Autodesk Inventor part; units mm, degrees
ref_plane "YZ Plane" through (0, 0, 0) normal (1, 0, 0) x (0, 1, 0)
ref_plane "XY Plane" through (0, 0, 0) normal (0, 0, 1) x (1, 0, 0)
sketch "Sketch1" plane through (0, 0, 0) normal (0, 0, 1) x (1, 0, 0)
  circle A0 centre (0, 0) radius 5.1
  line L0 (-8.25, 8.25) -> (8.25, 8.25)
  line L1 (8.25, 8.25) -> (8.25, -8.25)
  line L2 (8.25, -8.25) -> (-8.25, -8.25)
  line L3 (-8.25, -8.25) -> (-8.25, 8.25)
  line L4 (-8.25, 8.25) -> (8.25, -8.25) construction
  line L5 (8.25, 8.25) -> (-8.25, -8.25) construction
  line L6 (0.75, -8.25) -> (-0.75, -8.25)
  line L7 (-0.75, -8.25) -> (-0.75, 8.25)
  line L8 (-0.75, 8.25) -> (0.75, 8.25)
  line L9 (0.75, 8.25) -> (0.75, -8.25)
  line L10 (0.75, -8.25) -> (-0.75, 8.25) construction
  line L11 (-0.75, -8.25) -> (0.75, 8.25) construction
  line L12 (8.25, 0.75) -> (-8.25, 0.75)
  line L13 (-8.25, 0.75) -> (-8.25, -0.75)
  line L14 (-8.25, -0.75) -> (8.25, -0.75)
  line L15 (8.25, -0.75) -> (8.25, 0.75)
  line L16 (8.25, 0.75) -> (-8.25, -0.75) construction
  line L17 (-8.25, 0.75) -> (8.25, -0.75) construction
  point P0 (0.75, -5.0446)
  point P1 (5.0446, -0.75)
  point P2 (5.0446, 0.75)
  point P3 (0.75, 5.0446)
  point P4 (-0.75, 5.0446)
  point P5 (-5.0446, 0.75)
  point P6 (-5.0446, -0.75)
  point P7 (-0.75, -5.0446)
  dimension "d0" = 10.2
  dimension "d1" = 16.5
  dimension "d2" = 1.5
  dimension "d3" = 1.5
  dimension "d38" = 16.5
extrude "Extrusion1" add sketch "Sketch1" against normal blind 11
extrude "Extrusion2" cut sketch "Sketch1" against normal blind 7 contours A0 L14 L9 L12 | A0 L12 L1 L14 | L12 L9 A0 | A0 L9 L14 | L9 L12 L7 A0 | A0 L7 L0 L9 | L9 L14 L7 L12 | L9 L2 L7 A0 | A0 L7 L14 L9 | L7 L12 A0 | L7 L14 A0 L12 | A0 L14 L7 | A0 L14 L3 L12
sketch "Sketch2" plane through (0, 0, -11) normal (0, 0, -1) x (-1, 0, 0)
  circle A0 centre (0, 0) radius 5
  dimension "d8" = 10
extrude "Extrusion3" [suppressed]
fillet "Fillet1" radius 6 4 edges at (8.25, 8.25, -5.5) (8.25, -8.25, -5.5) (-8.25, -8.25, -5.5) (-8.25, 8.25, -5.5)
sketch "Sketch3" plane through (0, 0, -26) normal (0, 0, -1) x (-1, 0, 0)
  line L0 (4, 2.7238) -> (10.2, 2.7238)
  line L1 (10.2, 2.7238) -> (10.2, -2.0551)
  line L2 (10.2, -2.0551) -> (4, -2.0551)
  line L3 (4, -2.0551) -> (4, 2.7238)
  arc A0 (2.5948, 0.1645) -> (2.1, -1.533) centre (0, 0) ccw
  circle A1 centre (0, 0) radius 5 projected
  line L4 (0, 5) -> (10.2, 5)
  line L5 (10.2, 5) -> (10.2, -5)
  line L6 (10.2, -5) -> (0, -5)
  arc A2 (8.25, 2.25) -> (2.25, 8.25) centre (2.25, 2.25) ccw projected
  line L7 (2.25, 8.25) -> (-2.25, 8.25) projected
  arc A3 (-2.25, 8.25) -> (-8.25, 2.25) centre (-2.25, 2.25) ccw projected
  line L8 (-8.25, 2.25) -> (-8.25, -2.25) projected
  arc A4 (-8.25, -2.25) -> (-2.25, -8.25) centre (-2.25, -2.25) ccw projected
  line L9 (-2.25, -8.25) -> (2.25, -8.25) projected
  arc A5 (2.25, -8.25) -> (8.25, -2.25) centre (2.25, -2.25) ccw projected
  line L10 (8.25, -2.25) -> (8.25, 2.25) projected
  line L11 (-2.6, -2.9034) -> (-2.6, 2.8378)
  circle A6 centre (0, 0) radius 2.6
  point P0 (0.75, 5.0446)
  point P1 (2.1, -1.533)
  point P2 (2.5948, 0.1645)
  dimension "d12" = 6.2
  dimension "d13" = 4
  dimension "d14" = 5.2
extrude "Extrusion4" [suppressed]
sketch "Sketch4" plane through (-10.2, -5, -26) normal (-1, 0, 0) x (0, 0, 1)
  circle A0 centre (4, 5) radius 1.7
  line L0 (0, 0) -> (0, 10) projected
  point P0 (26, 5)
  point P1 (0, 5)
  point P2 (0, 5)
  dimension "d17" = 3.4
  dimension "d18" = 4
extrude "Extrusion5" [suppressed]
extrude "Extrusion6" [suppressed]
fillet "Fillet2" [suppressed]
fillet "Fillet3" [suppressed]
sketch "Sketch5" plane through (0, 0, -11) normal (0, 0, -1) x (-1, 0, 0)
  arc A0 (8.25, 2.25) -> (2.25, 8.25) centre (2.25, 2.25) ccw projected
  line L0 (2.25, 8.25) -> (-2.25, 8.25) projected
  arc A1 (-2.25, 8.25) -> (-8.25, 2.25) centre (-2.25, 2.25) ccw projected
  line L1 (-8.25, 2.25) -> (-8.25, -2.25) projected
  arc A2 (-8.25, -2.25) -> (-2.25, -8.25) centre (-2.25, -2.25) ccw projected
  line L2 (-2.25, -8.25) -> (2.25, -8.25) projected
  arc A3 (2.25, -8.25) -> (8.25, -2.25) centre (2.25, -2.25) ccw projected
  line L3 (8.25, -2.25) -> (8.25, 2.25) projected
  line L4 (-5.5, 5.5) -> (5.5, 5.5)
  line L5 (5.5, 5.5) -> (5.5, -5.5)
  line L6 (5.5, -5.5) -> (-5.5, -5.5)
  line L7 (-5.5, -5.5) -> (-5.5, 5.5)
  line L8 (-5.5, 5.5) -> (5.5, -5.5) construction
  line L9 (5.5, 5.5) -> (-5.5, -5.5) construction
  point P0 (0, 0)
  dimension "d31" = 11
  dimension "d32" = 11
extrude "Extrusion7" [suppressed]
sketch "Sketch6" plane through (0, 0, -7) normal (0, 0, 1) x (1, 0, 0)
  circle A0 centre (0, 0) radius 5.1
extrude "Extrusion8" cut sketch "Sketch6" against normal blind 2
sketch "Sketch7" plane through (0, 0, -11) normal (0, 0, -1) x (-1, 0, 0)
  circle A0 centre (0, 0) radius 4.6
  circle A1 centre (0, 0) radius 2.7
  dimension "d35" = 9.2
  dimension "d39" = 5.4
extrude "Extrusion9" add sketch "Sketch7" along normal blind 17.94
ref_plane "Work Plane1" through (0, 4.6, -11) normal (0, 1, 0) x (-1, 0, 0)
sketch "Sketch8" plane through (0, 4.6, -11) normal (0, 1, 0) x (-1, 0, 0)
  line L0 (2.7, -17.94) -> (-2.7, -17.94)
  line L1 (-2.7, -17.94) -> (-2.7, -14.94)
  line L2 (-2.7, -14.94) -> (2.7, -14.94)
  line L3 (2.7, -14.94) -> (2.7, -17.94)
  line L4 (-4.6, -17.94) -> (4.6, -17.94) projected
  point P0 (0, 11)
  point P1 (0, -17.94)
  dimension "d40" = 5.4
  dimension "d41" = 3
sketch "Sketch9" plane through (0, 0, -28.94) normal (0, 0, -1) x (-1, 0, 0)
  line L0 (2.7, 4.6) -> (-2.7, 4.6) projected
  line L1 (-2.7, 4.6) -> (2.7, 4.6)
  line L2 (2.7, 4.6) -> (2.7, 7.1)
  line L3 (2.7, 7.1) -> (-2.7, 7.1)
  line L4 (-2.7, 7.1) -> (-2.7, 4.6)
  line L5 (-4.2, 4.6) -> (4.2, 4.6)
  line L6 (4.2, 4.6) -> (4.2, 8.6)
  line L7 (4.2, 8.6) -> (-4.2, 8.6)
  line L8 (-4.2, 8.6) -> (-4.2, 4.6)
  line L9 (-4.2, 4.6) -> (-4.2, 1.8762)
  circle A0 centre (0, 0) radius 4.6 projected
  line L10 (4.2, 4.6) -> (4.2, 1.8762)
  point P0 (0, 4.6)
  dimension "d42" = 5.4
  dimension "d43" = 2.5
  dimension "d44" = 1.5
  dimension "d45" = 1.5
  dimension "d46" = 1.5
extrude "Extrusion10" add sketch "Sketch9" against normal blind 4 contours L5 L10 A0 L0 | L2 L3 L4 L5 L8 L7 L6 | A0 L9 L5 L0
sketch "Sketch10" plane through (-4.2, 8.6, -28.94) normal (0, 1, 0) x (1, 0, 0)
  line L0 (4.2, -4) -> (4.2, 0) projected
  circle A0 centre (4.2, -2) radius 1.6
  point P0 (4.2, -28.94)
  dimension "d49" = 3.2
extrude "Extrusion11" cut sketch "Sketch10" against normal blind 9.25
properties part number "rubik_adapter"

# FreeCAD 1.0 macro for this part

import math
import FreeCAD as App
import Part
import Sketcher
from FreeCAD import Vector


def edges_at(feature, points):
    """Names of the edges that pass closest to the given points."""
    edges = feature.Shape.Edges
    near = lambda p: min(range(len(edges)), key=lambda i: edges[i].distToShape(Part.Vertex(*p))[0])
    return sorted({f"Edge{near(p) + 1}" for p in points})

doc = App.newDocument("Part")
params = doc.addObject("Spreadsheet::Sheet", "Params")
for row, (alias, value) in enumerate([
    ("sketch1_width", "16.5 mm"),
    ("pad1_length", "11 mm"),
    ("sketch2_radius", "5.1 mm"),
    ("sketch2_width", "1.5 mm"),
    ("pocket1_length", "7 mm"),
    ("fillet_radius", "6 mm"),
    ("sketch3_diameter", "10.2 mm"),
    ("pocket2_length", "2 mm"),
    ("sketch4_diameter", "9.2 mm"),
    ("sketch4_diameter2", "5.4 mm"),
    ("pad2_length", "17.94 mm"),
    ("sketch5_width", "5.4 mm"),
    ("sketch5_height", "2.5 mm"),
    ("sketch5_radius", "4.6 mm"),
    ("pad3_length", "4 mm"),
    ("sketch6_diameter", "3.2 mm"),
    ("pocket3_length", "9.25 mm"),
], start=1):
    params.set(f"A{row}", alias)
    params.set(f"B{row}", "=" + value)
    params.setAlias(f"B{row}", alias)

body = doc.addObject("PartDesign::Body", "Body")

sketch1 = doc.addObject("Sketcher::SketchObject", "Sketch")
body.addObject(sketch1)
sketch1.AttachmentSupport = (doc.XY_Plane, [""])
sketch1.MapMode = "FlatFace"
sketch1.addGeometry(Part.LineSegment(Vector(8, 8, 0), Vector(-8, 8, 0)), False)
sketch1.addGeometry(Part.LineSegment(Vector(-8, 8, 0), Vector(-8, -8, 0)), False)
sketch1.addGeometry(Part.LineSegment(Vector(-8, -8, 0), Vector(8, -8, 0)), False)
sketch1.addGeometry(Part.LineSegment(Vector(8, -8, 0), Vector(8, 8, 0)), False)
sketch1.addConstraint(Sketcher.Constraint("Coincident", 0, 2, 1, 1))
sketch1.addConstraint(Sketcher.Constraint("Coincident", 1, 2, 2, 1))
sketch1.addConstraint(Sketcher.Constraint("Coincident", 2, 2, 3, 1))
sketch1.addConstraint(Sketcher.Constraint("Coincident", 3, 2, 0, 1))
sketch1.addConstraint(Sketcher.Constraint("Horizontal", 0))
sketch1.addConstraint(Sketcher.Constraint("Vertical", 1))
sketch1.addConstraint(Sketcher.Constraint("Horizontal", 2))
sketch1.addConstraint(Sketcher.Constraint("Vertical", 3))
sketch1.addConstraint(Sketcher.Constraint("Symmetric", 0, 2, 2, 2, -1, 1))
sketch1.addConstraint(Sketcher.Constraint("Equal", 2, 1))
sketch1.addConstraint(Sketcher.Constraint("DistanceX", 0, 2, 0, 1, 16.5))
sketch1.setExpression("Constraints[10]", "Params.sketch1_width")
pad1 = doc.addObject("PartDesign::Pad", "Pad")
body.addObject(pad1)
pad1.Profile = sketch1
pad1.setExpression("Length", "Params.pad1_length")
pad1.Reversed = True

sketch2 = doc.addObject("Sketcher::SketchObject", "Sketch001")
body.addObject(sketch2)
sketch2.AttachmentSupport = (doc.XY_Plane, [""])
sketch2.MapMode = "FlatFace"
sketch2.addGeometry(Part.LineSegment(Vector(5, -0.8, 0), Vector(8.2, -0.8, 0)), False)
sketch2.addGeometry(Part.LineSegment(Vector(8.2, -0.8, 0), Vector(8.2, 0.8, 0)), False)
sketch2.addGeometry(Part.LineSegment(Vector(8.2, 0.8, 0), Vector(5, 0.8, 0)), False)
sketch2.addGeometry(Part.ArcOfCircle(Part.Circle(Vector(0, 0, 0), Vector(0, 0, 1), 5.1), math.radians(8), math.radians(82)), False)
sketch2.addGeometry(Part.LineSegment(Vector(0.8, 5, 0), Vector(0.8, 8.2, 0)), False)
sketch2.addGeometry(Part.LineSegment(Vector(0.8, 8.2, 0), Vector(-0.8, 8.2, 0)), False)
sketch2.addGeometry(Part.LineSegment(Vector(-0.8, 8.2, 0), Vector(-0.8, 5, 0)), False)
sketch2.addGeometry(Part.ArcOfCircle(Part.Circle(Vector(0, 0, 0), Vector(0, 0, 1), 5.1), math.radians(98), math.radians(172)), False)
sketch2.addGeometry(Part.LineSegment(Vector(-5, 0.8, 0), Vector(-8.2, 0.8, 0)), False)
sketch2.addGeometry(Part.LineSegment(Vector(-8.2, 0.8, 0), Vector(-8.2, -0.8, 0)), False)
sketch2.addGeometry(Part.LineSegment(Vector(-8.2, -0.8, 0), Vector(-5, -0.8, 0)), False)
sketch2.addGeometry(Part.ArcOfCircle(Part.Circle(Vector(0, 0, 0), Vector(0, 0, 1), 5.1), math.radians(-172), math.radians(-98)), False)
sketch2.addGeometry(Part.LineSegment(Vector(-0.8, -5, 0), Vector(-0.8, -8.2, 0)), False)
sketch2.addGeometry(Part.LineSegment(Vector(-0.8, -8.2, 0), Vector(0.8, -8.2, 0)), False)
sketch2.addGeometry(Part.LineSegment(Vector(0.8, -8.2, 0), Vector(0.8, -5, 0)), False)
sketch2.addGeometry(Part.ArcOfCircle(Part.Circle(Vector(0, 0, 0), Vector(0, 0, 1), 5.1), math.radians(-82), math.radians(-8)), False)
sketch2.addConstraint(Sketcher.Constraint("Coincident", 0, 2, 1, 1))
sketch2.addConstraint(Sketcher.Constraint("Coincident", 1, 2, 2, 1))
sketch2.addConstraint(Sketcher.Constraint("Coincident", 2, 2, 3, 1))
sketch2.addConstraint(Sketcher.Constraint("Coincident", 3, 2, 4, 1))
sketch2.addConstraint(Sketcher.Constraint("Coincident", 4, 2, 5, 1))
sketch2.addConstraint(Sketcher.Constraint("Coincident", 5, 2, 6, 1))
sketch2.addConstraint(Sketcher.Constraint("Coincident", 6, 2, 7, 1))
sketch2.addConstraint(Sketcher.Constraint("Coincident", 7, 2, 8, 1))
sketch2.addConstraint(Sketcher.Constraint("Coincident", 8, 2, 9, 1))
sketch2.addConstraint(Sketcher.Constraint("Coincident", 9, 2, 10, 1))
sketch2.addConstraint(Sketcher.Constraint("Coincident", 10, 2, 11, 1))
sketch2.addConstraint(Sketcher.Constraint("Coincident", 11, 2, 12, 1))
sketch2.addConstraint(Sketcher.Constraint("Coincident", 12, 2, 13, 1))
sketch2.addConstraint(Sketcher.Constraint("Coincident", 13, 2, 14, 1))
sketch2.addConstraint(Sketcher.Constraint("Coincident", 14, 2, 15, 1))
sketch2.addConstraint(Sketcher.Constraint("Coincident", 15, 2, 0, 1))
sketch2.addConstraint(Sketcher.Constraint("Horizontal", 0))
sketch2.addConstraint(Sketcher.Constraint("Vertical", 1))
sketch2.addConstraint(Sketcher.Constraint("Horizontal", 2))
sketch2.addConstraint(Sketcher.Constraint("Vertical", 4))
sketch2.addConstraint(Sketcher.Constraint("Horizontal", 5))
sketch2.addConstraint(Sketcher.Constraint("Vertical", 6))
sketch2.addConstraint(Sketcher.Constraint("Horizontal", 8))
sketch2.addConstraint(Sketcher.Constraint("Vertical", 9))
sketch2.addConstraint(Sketcher.Constraint("Horizontal", 10))
sketch2.addConstraint(Sketcher.Constraint("Vertical", 12))
sketch2.addConstraint(Sketcher.Constraint("Horizontal", 13))
sketch2.addConstraint(Sketcher.Constraint("Vertical", 14))
sketch2.addConstraint(Sketcher.Constraint("Coincident", 3, 3, -1, 1))
sketch2.addConstraint(Sketcher.Constraint("Coincident", 7, 3, -1, 1))
sketch2.addConstraint(Sketcher.Constraint("Coincident", 11, 3, -1, 1))
sketch2.addConstraint(Sketcher.Constraint("Coincident", 15, 3, -1, 1))
sketch2.addConstraint(Sketcher.Constraint("Equal", 3, 7))
sketch2.addConstraint(Sketcher.Constraint("Equal", 7, 11))
sketch2.addConstraint(Sketcher.Constraint("Equal", 11, 15))
sketch2.addConstraint(Sketcher.Constraint("Symmetric", 0, 2, 8, 2, -1, 1))
sketch2.addConstraint(Sketcher.Constraint("Symmetric", 4, 2, 12, 2, -1, 1))
sketch2.addConstraint(Sketcher.Constraint("Horizontal", 3, 2, 6, 2))
sketch2.addConstraint(Sketcher.Constraint("Horizontal", 2, 2, 7, 2))
sketch2.addConstraint(Sketcher.Constraint("Horizontal", 0, 2, 9, 2))
sketch2.addConstraint(Sketcher.Constraint("Horizontal", 11, 2, 14, 2))
sketch2.addConstraint(Sketcher.Constraint("Equal", 13, 1))
sketch2.addConstraint(Sketcher.Constraint("Equal", 10, 4))
sketch2.addConstraint(Sketcher.Constraint("Radius", 3, 5.1))
sketch2.addConstraint(Sketcher.Constraint("DistanceX", 5, 2, 5, 1, 1.5))
sketch2.addConstraint(Sketcher.Constraint("DistanceX", -1, 1, 0, 2, 8.25))
sketch2.setExpression("Constraints[43]", "Params.sketch2_radius")
sketch2.setExpression("Constraints[44]", "Params.sketch2_width")
pocket1 = doc.addObject("PartDesign::Pocket", "Pocket")
body.addObject(pocket1)
pocket1.Profile = sketch2
pocket1.setExpression("Length", "Params.pocket1_length")
doc.recompute()

fillet = doc.addObject("PartDesign::Fillet", "Fillet")
body.addObject(fillet)
fillet.Base = (pocket1, edges_at(pocket1, [
    (8.25, 8.25, -5.5),
    (8.25, -8.25, -5.5),
    (-8.25, -8.25, -5.5),
    (-8.25, 8.25, -5.5),
]))
fillet.setExpression("Radius", "Params.fillet_radius")

sketch3 = doc.addObject("Sketcher::SketchObject", "Sketch002")
body.addObject(sketch3)
sketch3.AttachmentSupport = (doc.XY_Plane, [""])
sketch3.MapMode = "FlatFace"
sketch3.AttachmentOffset = App.Placement(Vector(0, 0, -7), App.Rotation())
sketch3.addGeometry(Part.Circle(Vector(0, 0, 0), Vector(0, 0, 1), 5), False)
sketch3.addConstraint(Sketcher.Constraint("Coincident", 0, 3, -1, 1))
sketch3.addConstraint(Sketcher.Constraint("Diameter", 0, 10.2))
sketch3.setExpression("Constraints[1]", "Params.sketch3_diameter")
pocket2 = doc.addObject("PartDesign::Pocket", "Pocket001")
body.addObject(pocket2)
pocket2.Profile = sketch3
pocket2.setExpression("Length", "Params.pocket2_length")

sketch4 = doc.addObject("Sketcher::SketchObject", "Sketch003")
body.addObject(sketch4)
sketch4.AttachmentSupport = (doc.XY_Plane, [""])
sketch4.MapMode = "FlatFace"
sketch4.AttachmentOffset = App.Placement(Vector(0, 0, -11), App.Rotation())
sketch4.addGeometry(Part.Circle(Vector(0, 0, 0), Vector(0, 0, 1), 4.6), False)
sketch4.addGeometry(Part.Circle(Vector(0, 0, 0), Vector(0, 0, 1), 2.7), False)
sketch4.addConstraint(Sketcher.Constraint("Coincident", 0, 3, -1, 1))
sketch4.addConstraint(Sketcher.Constraint("Coincident", 1, 3, -1, 1))
sketch4.addConstraint(Sketcher.Constraint("Diameter", 0, 9.2))
sketch4.addConstraint(Sketcher.Constraint("Diameter", 1, 5.4))
sketch4.setExpression("Constraints[2]", "Params.sketch4_diameter")
sketch4.setExpression("Constraints[3]", "Params.sketch4_diameter2")
pad2 = doc.addObject("PartDesign::Pad", "Pad001")
body.addObject(pad2)
pad2.Profile = sketch4
pad2.setExpression("Length", "Params.pad2_length")
pad2.Reversed = True

sketch5 = doc.addObject("Sketcher::SketchObject", "Sketch004")
body.addObject(sketch5)
sketch5.AttachmentSupport = (doc.XY_Plane, [""])
sketch5.MapMode = "FlatFace"
sketch5.AttachmentOffset = App.Placement(Vector(0, 0, -28.94), App.Rotation())
sketch5.addGeometry(Part.ArcOfCircle(Part.Circle(Vector(0, 0, 0), Vector(0, 0, 1), 4.6), math.radians(90), math.radians(156)), False)
sketch5.addGeometry(Part.LineSegment(Vector(-4.2, 1.9, 0), Vector(-4.2, 8.6, 0)), False)
sketch5.addGeometry(Part.LineSegment(Vector(-4.2, 8.6, 0), Vector(4.2, 8.6, 0)), False)
sketch5.addGeometry(Part.LineSegment(Vector(4.2, 8.6, 0), Vector(4.2, 1.9, 0)), False)
sketch5.addGeometry(Part.ArcOfCircle(Part.Circle(Vector(0, 0, 0), Vector(0, 0, 1), 4.6), math.radians(24), math.radians(90)), False)
sketch5.addGeometry(Part.LineSegment(Vector(0, 4.6, 0), Vector(2.7, 4.6, 0)), False)
sketch5.addGeometry(Part.LineSegment(Vector(2.7, 4.6, 0), Vector(2.7, 7.1, 0)), False)
sketch5.addGeometry(Part.LineSegment(Vector(2.7, 7.1, 0), Vector(-2.7, 7.1, 0)), False)
sketch5.addGeometry(Part.LineSegment(Vector(-2.7, 7.1, 0), Vector(-2.7, 4.6, 0)), False)
sketch5.addGeometry(Part.LineSegment(Vector(-2.7, 4.6, 0), Vector(0, 4.6, 0)), False)
sketch5.addConstraint(Sketcher.Constraint("Coincident", 0, 2, 1, 1))
sketch5.addConstraint(Sketcher.Constraint("Coincident", 1, 2, 2, 1))
sketch5.addConstraint(Sketcher.Constraint("Coincident", 2, 2, 3, 1))
sketch5.addConstraint(Sketcher.Constraint("Coincident", 3, 2, 4, 1))
sketch5.addConstraint(Sketcher.Constraint("Tangent", 4, 2, 0, 1))
sketch5.addConstraint(Sketcher.Constraint("Coincident", 5, 2, 6, 1))
sketch5.addConstraint(Sketcher.Constraint("Coincident", 6, 2, 7, 1))
sketch5.addConstraint(Sketcher.Constraint("Coincident", 7, 2, 8, 1))
sketch5.addConstraint(Sketcher.Constraint("Coincident", 8, 2, 9, 1))
sketch5.addConstraint(Sketcher.Constraint("Coincident", 9, 2, 5, 1))
sketch5.addConstraint(Sketcher.Constraint("Vertical", 1))
sketch5.addConstraint(Sketcher.Constraint("Horizontal", 2))
sketch5.addConstraint(Sketcher.Constraint("Vertical", 3))
sketch5.addConstraint(Sketcher.Constraint("Horizontal", 5))
sketch5.addConstraint(Sketcher.Constraint("Vertical", 6))
sketch5.addConstraint(Sketcher.Constraint("Horizontal", 7))
sketch5.addConstraint(Sketcher.Constraint("Vertical", 8))
sketch5.addConstraint(Sketcher.Constraint("Horizontal", 9))
sketch5.addConstraint(Sketcher.Constraint("Coincident", 0, 3, -1, 1))
sketch5.addConstraint(Sketcher.Constraint("Coincident", 9, 2, 4, 2))
sketch5.addConstraint(Sketcher.Constraint("Equal", 0, 4))
sketch5.addConstraint(Sketcher.Constraint("PointOnObject", 4, 2, -2))
sketch5.addConstraint(Sketcher.Constraint("Horizontal", 0, 2, 3, 2))
sketch5.addConstraint(Sketcher.Constraint("Equal", 5, 9))
sketch5.addConstraint(Sketcher.Constraint("DistanceX", 7, 2, 7, 1, 5.4))
sketch5.addConstraint(Sketcher.Constraint("DistanceY", 6, 1, 6, 2, 2.5))
sketch5.addConstraint(Sketcher.Constraint("Radius", 0, 4.6))
sketch5.addConstraint(Sketcher.Constraint("DistanceX", 5, 2, 3, 2, 1.5))
sketch5.addConstraint(Sketcher.Constraint("DistanceY", 6, 2, 2, 2, 1.5))
sketch5.setExpression("Constraints[24]", "Params.sketch5_width")
sketch5.setExpression("Constraints[25]", "Params.sketch5_height")
sketch5.setExpression("Constraints[26]", "Params.sketch5_radius")
pad3 = doc.addObject("PartDesign::Pad", "Pad002")
body.addObject(pad3)
pad3.Profile = sketch5
pad3.setExpression("Length", "Params.pad3_length")

sketch6 = doc.addObject("Sketcher::SketchObject", "Sketch005")
body.addObject(sketch6)
sketch6.AttachmentSupport = (doc.XZ_Plane, [""])
sketch6.MapMode = "FlatFace"
sketch6.AttachmentOffset = App.Placement(Vector(0, 0, -8.6), App.Rotation())
sketch6.addGeometry(Part.Circle(Vector(0, -26.9, 0), Vector(0, 0, 1), 1.6), False)
sketch6.addConstraint(Sketcher.Constraint("PointOnObject", 0, 3, -2))
sketch6.addConstraint(Sketcher.Constraint("Diameter", 0, 3.2))
sketch6.addConstraint(Sketcher.Constraint("DistanceY", 0, 3, -1, 1, 26.94))
sketch6.setExpression("Constraints[1]", "Params.sketch6_diameter")
pocket3 = doc.addObject("PartDesign::Pocket", "Pocket002")
body.addObject(pocket3)
pocket3.Profile = sketch6
pocket3.setExpression("Length", "Params.pocket3_length")
pocket3.Reversed = True

doc.recompute()
